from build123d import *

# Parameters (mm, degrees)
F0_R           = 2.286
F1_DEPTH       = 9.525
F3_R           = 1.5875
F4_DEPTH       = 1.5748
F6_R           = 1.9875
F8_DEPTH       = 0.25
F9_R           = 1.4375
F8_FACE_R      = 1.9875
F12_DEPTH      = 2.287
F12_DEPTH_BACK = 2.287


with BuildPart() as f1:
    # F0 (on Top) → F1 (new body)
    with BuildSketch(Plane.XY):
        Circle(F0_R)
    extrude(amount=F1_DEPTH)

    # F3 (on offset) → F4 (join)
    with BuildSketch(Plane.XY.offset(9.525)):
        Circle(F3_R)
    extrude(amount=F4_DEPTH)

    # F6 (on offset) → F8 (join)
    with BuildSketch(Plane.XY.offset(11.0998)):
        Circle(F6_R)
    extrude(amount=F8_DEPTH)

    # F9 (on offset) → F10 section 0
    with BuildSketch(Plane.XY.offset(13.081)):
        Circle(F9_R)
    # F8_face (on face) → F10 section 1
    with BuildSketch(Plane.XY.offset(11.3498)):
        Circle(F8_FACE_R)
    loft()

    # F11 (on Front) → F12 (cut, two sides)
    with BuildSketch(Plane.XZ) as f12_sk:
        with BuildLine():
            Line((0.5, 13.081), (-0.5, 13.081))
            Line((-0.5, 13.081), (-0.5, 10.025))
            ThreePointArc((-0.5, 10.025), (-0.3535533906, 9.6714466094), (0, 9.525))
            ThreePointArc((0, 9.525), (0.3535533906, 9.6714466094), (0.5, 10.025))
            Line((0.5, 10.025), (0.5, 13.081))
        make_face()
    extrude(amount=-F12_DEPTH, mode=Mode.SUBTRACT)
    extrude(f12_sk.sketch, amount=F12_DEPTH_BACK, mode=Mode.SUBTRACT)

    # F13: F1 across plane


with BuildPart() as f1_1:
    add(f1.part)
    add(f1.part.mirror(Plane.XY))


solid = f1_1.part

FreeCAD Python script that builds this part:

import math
import FreeCAD as App
import Part
import Sketcher
from FreeCAD import Vector
Q = App.Units.Quantity

doc = App.newDocument("Part")
body = doc.addObject("PartDesign::Body", "Body")

sketch1 = body.newObject("Sketcher::SketchObject", "Sketch")
sketch1.AttachmentSupport = (doc.getObject("XY_Plane"), [""])
sketch1.MapMode = "FlatFace"
sketch1.addGeometry(Part.Circle(Vector(0, 0, 0), Vector(0, 0, 1), 2.286), False)
sketch1.addConstraint([
    Sketcher.Constraint("Coincident", 0, 3, -1, 1),
    Sketcher.Constraint("Diameter", 0, Q("0.18 in")),
])
pad1 = body.newObject("PartDesign::Pad", "Pad")
pad1.Profile = sketch1
pad1.Length = Q("0.375 in")

sketch2 = body.newObject("Sketcher::SketchObject", "Sketch001")
sketch2.AttachmentSupport = (doc.getObject("XY_Plane"), [""])
sketch2.MapMode = "FlatFace"
sketch2.AttachmentOffset = App.Placement(Vector(0, 0, 0.375 * 25.4), App.Rotation())
sketch2.addGeometry(Part.Circle(Vector(0, 0, 0), Vector(0, 0, 1), 1.5875), False)
sketch2.addConstraint([
    Sketcher.Constraint("Coincident", 0, 3, -1, 1),
    Sketcher.Constraint("Diameter", 0, Q("0.125 in")),
])
pad2 = body.newObject("PartDesign::Pad", "Pad001")
pad2.Profile = sketch2
pad2.Length = Q("0.062 in")

sketch3 = body.newObject("Sketcher::SketchObject", "Sketch002")
sketch3.AttachmentSupport = (doc.getObject("XY_Plane"), [""])
sketch3.MapMode = "FlatFace"
sketch3.AttachmentOffset = App.Placement(Vector(0, 0, 0.437 * 25.4), App.Rotation())
sketch3.addGeometry(Part.Circle(Vector(0, 0, 0), Vector(0, 0, 1), 1.9875), False)
sketch3.addConstraint([
    Sketcher.Constraint("Coincident", 0, 3, -1, 1),
    Sketcher.Constraint("Diameter", 0, Q("3.975 mm")),
])
pad3 = body.newObject("PartDesign::Pad", "Pad002")
pad3.Profile = sketch3
pad3.Length = 0.25

sketch4 = body.newObject("Sketcher::SketchObject", "Sketch003")
sketch4.AttachmentSupport = (doc.getObject("XY_Plane"), [""])
sketch4.MapMode = "FlatFace"
sketch4.AttachmentOffset = App.Placement(Vector(0, 0, 0.515 * 25.4), App.Rotation())
sketch4.addGeometry(Part.Circle(Vector(0, 0, 0), Vector(0, 0, 1), 1.4375), False)
sketch4.addConstraint([
    Sketcher.Constraint("Coincident", 0, 3, -1, 1),
    Sketcher.Constraint("Diameter", 0, Q("2.875 mm")),
])

sketch5 = body.newObject("Sketcher::SketchObject", "Sketch004")
sketch5.AttachmentSupport = (doc.getObject("XY_Plane"), [""])
sketch5.MapMode = "FlatFace"
sketch5.AttachmentOffset = App.Placement(Vector(0, 0, 11.3498), App.Rotation())
sketch5.addGeometry(Part.Circle(Vector(0, 0, 0), Vector(0, 0, 1), 1.9875), False)
sketch5.addConstraint([
    Sketcher.Constraint("Coincident", 0, 3, -1, 1),
    Sketcher.Constraint("Diameter", 0, Q("3.975 mm")),
])

additiveloft = body.newObject("PartDesign::AdditiveLoft", "AdditiveLoft")
additiveloft.Profile = sketch4
additiveloft.Sections = [sketch5]

sketch6 = body.newObject("Sketcher::SketchObject", "Sketch005")
sketch6.AttachmentSupport = (doc.getObject("XZ_Plane"), [""])
sketch6.MapMode = "FlatFace"
sketch6.addGeometry([
    Part.LineSegment(Vector(0.5, 13.081, 0), Vector(-0.5, 13.081, 0)),
    Part.LineSegment(Vector(-0.5, 13.081, 0), Vector(-0.5, 10.025, 0)),
    Part.ArcOfCircle(Part.Circle(Vector(0, 10.025, 0), Vector(0, 0, 1), 0.5), math.radians(180), math.radians(270)),
    Part.ArcOfCircle(Part.Circle(Vector(0, 10.025, 0), Vector(0, 0, 1), 0.5), math.radians(-90), math.radians(0)),
    Part.LineSegment(Vector(0.5, 10.025, 0), Vector(0.5, 13.081, 0)),
], False)
sketch6.addConstraint([
    Sketcher.Constraint("Coincident", 0, 2, 1, 1),
    Sketcher.Constraint("Tangent", 1, 2, 2, 1),
    Sketcher.Constraint("Tangent", 2, 2, 3, 1),
    Sketcher.Constraint("Tangent", 3, 2, 4, 1),
    Sketcher.Constraint("Coincident", 4, 2, 0, 1),
    Sketcher.Constraint("Horizontal", 0),
    Sketcher.Constraint("Vertical", 1),
    Sketcher.Constraint("Vertical", 4),
    Sketcher.Constraint("Equal", 2, 3),
    Sketcher.Constraint("PointOnObject", 2, 3, -2),
    Sketcher.Constraint("PointOnObject", 2, 2, -2),
    Sketcher.Constraint("Radius", 2, Q("0.5 mm")),
    Sketcher.Constraint("DistanceY", 2, 2, 0, 2, Q("0.14 in")),
    Sketcher.Constraint("DistanceY", -1, 1, 0, 2, Q("0.515 in")),
])
pocket1 = body.newObject("PartDesign::Pocket", "Pocket")
pocket1.Profile = sketch6
pocket1.Type = "ThroughAll"
pocket1.Midplane = True
body2 = doc.addObject("PartDesign::Body", "Body001")
doc.recompute()

body2.BaseFeature = body
doc.recompute()

mirroring = doc.addObject("Part::Mirroring", "Mirroring")
mirroring.Source = body
mirroring.Base = Vector(0, 0, 0)
mirroring.Normal = Vector(0, 0, 1)
body3 = doc.addObject("PartDesign::Body", "Body002")
body3.BaseFeature = mirroring
boolean = body2.newObject("PartDesign::Boolean", "Boolean")
boolean.Type = "Fuse"
boolean.addObjects([body3])
doc.recompute()
mirroring.Visibility = False

doc.recompute()
